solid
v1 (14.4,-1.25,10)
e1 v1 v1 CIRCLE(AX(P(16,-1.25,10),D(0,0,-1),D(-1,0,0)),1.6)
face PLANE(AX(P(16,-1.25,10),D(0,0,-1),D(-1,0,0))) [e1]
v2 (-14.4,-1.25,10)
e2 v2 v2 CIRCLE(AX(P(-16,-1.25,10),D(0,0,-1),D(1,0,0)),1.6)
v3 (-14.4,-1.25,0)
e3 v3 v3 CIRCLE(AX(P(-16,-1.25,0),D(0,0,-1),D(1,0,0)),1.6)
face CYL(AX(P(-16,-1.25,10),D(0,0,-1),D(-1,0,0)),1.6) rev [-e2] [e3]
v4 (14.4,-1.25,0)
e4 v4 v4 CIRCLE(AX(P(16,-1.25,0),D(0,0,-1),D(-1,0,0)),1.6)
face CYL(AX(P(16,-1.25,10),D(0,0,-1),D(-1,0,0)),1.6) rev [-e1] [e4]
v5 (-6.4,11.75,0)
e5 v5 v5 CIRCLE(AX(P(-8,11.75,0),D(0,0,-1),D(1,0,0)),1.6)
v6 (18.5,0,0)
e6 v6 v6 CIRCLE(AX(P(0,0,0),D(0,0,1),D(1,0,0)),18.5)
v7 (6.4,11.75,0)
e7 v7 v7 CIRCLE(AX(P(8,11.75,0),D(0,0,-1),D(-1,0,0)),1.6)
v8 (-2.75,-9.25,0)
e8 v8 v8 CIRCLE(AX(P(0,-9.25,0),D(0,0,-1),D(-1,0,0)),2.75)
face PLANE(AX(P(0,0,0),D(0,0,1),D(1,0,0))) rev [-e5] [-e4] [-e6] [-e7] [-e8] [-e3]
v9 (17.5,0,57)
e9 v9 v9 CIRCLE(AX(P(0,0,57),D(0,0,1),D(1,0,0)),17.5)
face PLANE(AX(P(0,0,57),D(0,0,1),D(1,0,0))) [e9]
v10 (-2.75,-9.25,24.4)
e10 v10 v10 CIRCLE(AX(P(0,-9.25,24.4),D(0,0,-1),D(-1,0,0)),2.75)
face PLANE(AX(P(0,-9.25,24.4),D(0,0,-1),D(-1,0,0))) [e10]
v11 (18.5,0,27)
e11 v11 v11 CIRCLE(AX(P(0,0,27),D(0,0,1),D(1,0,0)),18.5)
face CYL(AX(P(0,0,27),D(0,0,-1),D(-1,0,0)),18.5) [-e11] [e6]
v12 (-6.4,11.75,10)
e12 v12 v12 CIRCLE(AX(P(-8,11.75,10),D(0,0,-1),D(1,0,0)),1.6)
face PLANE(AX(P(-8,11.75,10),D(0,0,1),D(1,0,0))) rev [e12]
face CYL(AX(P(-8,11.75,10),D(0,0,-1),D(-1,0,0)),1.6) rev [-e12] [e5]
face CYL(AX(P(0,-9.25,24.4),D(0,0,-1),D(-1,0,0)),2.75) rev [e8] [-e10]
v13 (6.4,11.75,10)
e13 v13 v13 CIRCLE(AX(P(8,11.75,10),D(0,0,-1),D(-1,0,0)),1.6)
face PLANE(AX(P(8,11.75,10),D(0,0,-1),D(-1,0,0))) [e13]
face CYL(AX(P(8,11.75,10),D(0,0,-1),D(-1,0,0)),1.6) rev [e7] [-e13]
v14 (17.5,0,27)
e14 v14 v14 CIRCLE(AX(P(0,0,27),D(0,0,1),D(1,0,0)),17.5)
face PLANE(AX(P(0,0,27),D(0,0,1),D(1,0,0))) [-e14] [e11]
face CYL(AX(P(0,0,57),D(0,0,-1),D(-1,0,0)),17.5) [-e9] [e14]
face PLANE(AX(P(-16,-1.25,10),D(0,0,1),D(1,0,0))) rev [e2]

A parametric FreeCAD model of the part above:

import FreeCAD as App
import Part
import Sketcher

doc = App.newDocument("Part")
params = doc.addObject("Spreadsheet::Sheet", "Params")
for row, (alias, value) in enumerate([
    ("sketch1_diameter", "37 mm"),
    ("pad1_length", "27 mm"),
    ("sketch2_diameter", "35 mm"),
    ("pad2_length", "30 mm"),
    ("sketch3_diameter", "5.5 mm"),
    ("pocket1_length", "24.4 mm"),
    ("sketch4_diameter", "3.2 mm"),
    ("sketch4_diameter2", "5.5 mm"),
    ("pocket2_length", "10 mm"),
], start=1):
    params.set(f"A{row}", alias)
    params.set(f"B{row}", "=" + value)
    params.setAlias(f"B{row}", alias)

body = doc.addObject("PartDesign::Body", "Body")

# Sketch on XY plane
sketch1 = doc.addObject("Sketcher::SketchObject", "Sketch")
body.addObject(sketch1)
sketch1.AttachmentSupport = (doc.XY_Plane, [""])
sketch1.MapMode = "FlatFace"
sketch1.addGeometry(Part.Circle(App.Vector(0, 0, 0), App.Vector(0, 0, 1), 18.5), False)
sketch1.addConstraint(Sketcher.Constraint("Coincident", 0, 3, -1, 1))
sketch1.addConstraint(Sketcher.Constraint("Diameter", 0, 37.0))
sketch1.setExpression("Constraints[1]", "Params.sketch1_diameter")
pad1 = doc.addObject("PartDesign::Pad", "Pad")
body.addObject(pad1)
pad1.Profile = sketch1
pad1.setExpression("Length", "Params.pad1_length")

# Sketch on XY plane
sketch2 = doc.addObject("Sketcher::SketchObject", "Sketch001")
body.addObject(sketch2)
sketch2.AttachmentSupport = (doc.XY_Plane, [""])
sketch2.MapMode = "FlatFace"
sketch2.AttachmentOffset = App.Placement(App.Vector(0, 0, 27), App.Rotation())
sketch2.addGeometry(Part.Circle(App.Vector(0, 0, 0), App.Vector(0, 0, 1), 17.5), False)
sketch2.addConstraint(Sketcher.Constraint("Coincident", 0, 3, -1, 1))
sketch2.addConstraint(Sketcher.Constraint("Diameter", 0, 35.0))
sketch2.setExpression("Constraints[1]", "Params.sketch2_diameter")
pad2 = doc.addObject("PartDesign::Pad", "Pad001")
body.addObject(pad2)
pad2.Profile = sketch2
pad2.setExpression("Length", "Params.pad2_length")

# Sketch on XY plane
sketch3 = doc.addObject("Sketcher::SketchObject", "Sketch002")
body.addObject(sketch3)
sketch3.AttachmentSupport = (doc.XY_Plane, [""])
sketch3.MapMode = "FlatFace"
sketch3.addGeometry(Part.Circle(App.Vector(0, -9.25, 0), App.Vector(0, 0, 1), 2.75), False)
sketch3.addConstraint(Sketcher.Constraint("PointOnObject", 0, 3, -2))
sketch3.addConstraint(Sketcher.Constraint("Diameter", 0, 5.5))
sketch3.addConstraint(Sketcher.Constraint("DistanceY", 0, 3, -1, 1, 9.25))
sketch3.setExpression("Constraints[1]", "Params.sketch3_diameter")
pocket1 = doc.addObject("PartDesign::Pocket", "Pocket")
body.addObject(pocket1)
pocket1.Profile = sketch3
pocket1.setExpression("Length", "Params.pocket1_length")
pocket1.Reversed = True

# Sketch on XY plane
sketch4 = doc.addObject("Sketcher::SketchObject", "Sketch003")
body.addObject(sketch4)
sketch4.AttachmentSupport = (doc.XY_Plane, [""])
sketch4.MapMode = "FlatFace"
sketch4.addGeometry(Part.Circle(App.Vector(16, -1.25, 0), App.Vector(0, 0, 1), 1.6), False)
sketch4.addGeometry(Part.Circle(App.Vector(8, 11.75, 0), App.Vector(0, 0, 1), 1.6), False)
sketch4.addGeometry(Part.Circle(App.Vector(0, -9.25, 0), App.Vector(0, 0, 1), 2.75), False)
sketch4.addGeometry(Part.Circle(App.Vector(-16, -1.25, 0), App.Vector(0, 0, 1), 1.6), False)
sketch4.addGeometry(Part.Circle(App.Vector(-8, 11.75, 0), App.Vector(0, 0, 1), 1.6), False)
sketch4.addConstraint(Sketcher.Constraint("Equal", 0, 1))
sketch4.addConstraint(Sketcher.Constraint("Equal", 1, 3))
sketch4.addConstraint(Sketcher.Constraint("Equal", 3, 4))
sketch4.addConstraint(Sketcher.Constraint("Symmetric", 0, 3, 3, 3, -2))
sketch4.addConstraint(Sketcher.Constraint("Symmetric", 1, 3, 4, 3, -2))
sketch4.addConstraint(Sketcher.Constraint("PointOnObject", 2, 3, -2))
sketch4.addConstraint(Sketcher.Constraint("Diameter", 0, 3.2))
sketch4.addConstraint(Sketcher.Constraint("Diameter", 2, 5.5))
sketch4.addConstraint(Sketcher.Constraint("DistanceX", -1, 1, 0, 3, 16.0))
sketch4.addConstraint(Sketcher.Constraint("DistanceX", -1, 1, 1, 3, 8.0))
sketch4.addConstraint(Sketcher.Constraint("DistanceY", 0, 3, 1, 3, 13.0))
sketch4.addConstraint(Sketcher.Constraint("DistanceY", 2, 3, 0, 3, 8.0))
sketch4.addConstraint(Sketcher.Constraint("DistanceY", 0, 3, -1, 1, 1.25))
sketch4.setExpression("Constraints[6]", "Params.sketch4_diameter")
sketch4.setExpression("Constraints[7]", "Params.sketch4_diameter2")
pocket2 = doc.addObject("PartDesign::Pocket", "Pocket001")
body.addObject(pocket2)
pocket2.Profile = sketch4
pocket2.setExpression("Length", "Params.pocket2_length")
pocket2.Reversed = True

doc.recompute()
